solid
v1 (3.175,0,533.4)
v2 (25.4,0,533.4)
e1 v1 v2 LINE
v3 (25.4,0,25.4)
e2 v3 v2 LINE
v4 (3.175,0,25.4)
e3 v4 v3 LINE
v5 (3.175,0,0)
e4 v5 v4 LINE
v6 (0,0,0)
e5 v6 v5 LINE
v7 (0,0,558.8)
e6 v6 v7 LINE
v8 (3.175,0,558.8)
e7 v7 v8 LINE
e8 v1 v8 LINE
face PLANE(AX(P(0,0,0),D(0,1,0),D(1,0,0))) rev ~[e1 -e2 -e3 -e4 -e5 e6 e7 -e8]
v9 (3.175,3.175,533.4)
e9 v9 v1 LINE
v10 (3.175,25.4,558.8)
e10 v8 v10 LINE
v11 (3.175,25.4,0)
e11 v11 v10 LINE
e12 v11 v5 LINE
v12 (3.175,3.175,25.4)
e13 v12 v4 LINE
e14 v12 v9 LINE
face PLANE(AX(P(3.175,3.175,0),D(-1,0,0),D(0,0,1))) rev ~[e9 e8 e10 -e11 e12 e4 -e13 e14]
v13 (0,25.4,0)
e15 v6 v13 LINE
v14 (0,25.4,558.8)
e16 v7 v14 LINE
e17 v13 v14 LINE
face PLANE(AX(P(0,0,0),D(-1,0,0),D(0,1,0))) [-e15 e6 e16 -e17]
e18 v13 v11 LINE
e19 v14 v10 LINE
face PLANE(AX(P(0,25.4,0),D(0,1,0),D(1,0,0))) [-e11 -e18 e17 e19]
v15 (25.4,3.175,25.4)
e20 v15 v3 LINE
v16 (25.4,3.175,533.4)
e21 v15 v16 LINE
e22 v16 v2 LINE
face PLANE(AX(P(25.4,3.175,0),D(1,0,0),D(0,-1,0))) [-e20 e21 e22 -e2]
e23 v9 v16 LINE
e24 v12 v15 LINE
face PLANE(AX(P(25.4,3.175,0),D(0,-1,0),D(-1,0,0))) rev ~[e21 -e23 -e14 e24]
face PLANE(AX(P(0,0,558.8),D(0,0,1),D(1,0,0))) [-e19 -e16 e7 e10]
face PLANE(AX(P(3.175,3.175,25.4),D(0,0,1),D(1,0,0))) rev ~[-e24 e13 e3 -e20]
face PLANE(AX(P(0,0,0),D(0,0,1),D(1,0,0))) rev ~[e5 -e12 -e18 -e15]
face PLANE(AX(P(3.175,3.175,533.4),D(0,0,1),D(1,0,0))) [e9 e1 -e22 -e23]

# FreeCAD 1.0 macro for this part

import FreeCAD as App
import Part
import Sketcher
Q = App.Units.Quantity


def add_polygon(sketch, points):
    """Adds a closed chain of lines whose ends are joined by coincident constraints."""
    first, n = sketch.GeometryCount, len(points)
    for a, b in zip(points, points[1:] + points[:1]):
        sketch.addGeometry(Part.LineSegment(App.Vector(*a, 0), App.Vector(*b, 0)), False)
    for i in range(n):
        sketch.addConstraint(Sketcher.Constraint("Coincident", first + i, 2, first + (i + 1) % n, 1))

doc = App.newDocument("Part")
body = doc.addObject("PartDesign::Body", "Body")

# Sketch on XY plane
sketch1 = body.newObject("Sketcher::SketchObject", "Sketch")
sketch1.AttachmentSupport = (doc.getObject("XY_Plane"), [""])
sketch1.MapMode = "FlatFace"
add_polygon(sketch1, [(0, 25.4), (0, 0), (25.4, 0), (25.4, 3.2), (3.2, 3.2), (3.2, 25.4)])  # lines 0-5
sketch1.addConstraint([
    Sketcher.Constraint("Vertical", 0),
    Sketcher.Constraint("Horizontal", 1),
    Sketcher.Constraint("Vertical", 2),
    Sketcher.Constraint("Horizontal", 3),
    Sketcher.Constraint("Vertical", 4),
    Sketcher.Constraint("Horizontal", 5),
    Sketcher.Constraint("Coincident", 0, 2, -1, 1),
    Sketcher.Constraint("Equal", 1, 0),
    Sketcher.Constraint("Equal", 5, 2),
    Sketcher.Constraint("DistanceX", 1, 1, 1, 2, Q("1 in")),
    Sketcher.Constraint("DistanceX", 5, 2, 5, 1, Q("0.125 in")),
])
pad1 = body.newObject("PartDesign::Pad", "Pad")
pad1.Profile = sketch1
pad1.Length = Q("22 in")

# Sketch on XZ plane
sketch2 = body.newObject("Sketcher::SketchObject", "Sketch001")
sketch2.AttachmentSupport = (doc.getObject("XZ_Plane"), [""])
sketch2.MapMode = "FlatFace"
sketch2.AttachmentOffset = App.Placement(App.Vector(0, 0, -0.125 * 25.4), App.Rotation())
add_polygon(sketch2, [(25, 0), (3, 0), (3, 25), (25, 25)])  # lines 0-3
add_polygon(sketch2, [(25, 533), (3, 533), (3, 559), (25, 559)])  # lines 4-7
sketch2.addConstraint([
    Sketcher.Constraint("Horizontal", 0),
    Sketcher.Constraint("Vertical", 1),
    Sketcher.Constraint("Horizontal", 2),
    Sketcher.Constraint("Vertical", 3),
    Sketcher.Constraint("Horizontal", 4),
    Sketcher.Constraint("Vertical", 5),
    Sketcher.Constraint("Horizontal", 6),
    Sketcher.Constraint("Vertical", 7),
    Sketcher.Constraint("PointOnObject", 0, 2, -1),
    Sketcher.Constraint("Vertical", 1, 2, 4, 2),
    Sketcher.Constraint("Vertical", 3, 2, 6, 2),
    Sketcher.Constraint("Equal", 3, 5),
    Sketcher.Constraint("DistanceY", 1, 1, 1, 2, Q("1 in")),
    Sketcher.Constraint("DistanceX", -1, 1, 2, 2, Q("1 in")),
    Sketcher.Constraint("DistanceY", -1, 1, 4, 2, Q("21 in")),
    Sketcher.Constraint("DistanceX", 0, 2, 0, 1, Q("0.875 in")),
])
pocket1 = body.newObject("PartDesign::Pocket", "Pocket")
pocket1.Profile = sketch2
pocket1.Length = Q("1 in")
pocket1.Reversed = True

doc.recompute()
